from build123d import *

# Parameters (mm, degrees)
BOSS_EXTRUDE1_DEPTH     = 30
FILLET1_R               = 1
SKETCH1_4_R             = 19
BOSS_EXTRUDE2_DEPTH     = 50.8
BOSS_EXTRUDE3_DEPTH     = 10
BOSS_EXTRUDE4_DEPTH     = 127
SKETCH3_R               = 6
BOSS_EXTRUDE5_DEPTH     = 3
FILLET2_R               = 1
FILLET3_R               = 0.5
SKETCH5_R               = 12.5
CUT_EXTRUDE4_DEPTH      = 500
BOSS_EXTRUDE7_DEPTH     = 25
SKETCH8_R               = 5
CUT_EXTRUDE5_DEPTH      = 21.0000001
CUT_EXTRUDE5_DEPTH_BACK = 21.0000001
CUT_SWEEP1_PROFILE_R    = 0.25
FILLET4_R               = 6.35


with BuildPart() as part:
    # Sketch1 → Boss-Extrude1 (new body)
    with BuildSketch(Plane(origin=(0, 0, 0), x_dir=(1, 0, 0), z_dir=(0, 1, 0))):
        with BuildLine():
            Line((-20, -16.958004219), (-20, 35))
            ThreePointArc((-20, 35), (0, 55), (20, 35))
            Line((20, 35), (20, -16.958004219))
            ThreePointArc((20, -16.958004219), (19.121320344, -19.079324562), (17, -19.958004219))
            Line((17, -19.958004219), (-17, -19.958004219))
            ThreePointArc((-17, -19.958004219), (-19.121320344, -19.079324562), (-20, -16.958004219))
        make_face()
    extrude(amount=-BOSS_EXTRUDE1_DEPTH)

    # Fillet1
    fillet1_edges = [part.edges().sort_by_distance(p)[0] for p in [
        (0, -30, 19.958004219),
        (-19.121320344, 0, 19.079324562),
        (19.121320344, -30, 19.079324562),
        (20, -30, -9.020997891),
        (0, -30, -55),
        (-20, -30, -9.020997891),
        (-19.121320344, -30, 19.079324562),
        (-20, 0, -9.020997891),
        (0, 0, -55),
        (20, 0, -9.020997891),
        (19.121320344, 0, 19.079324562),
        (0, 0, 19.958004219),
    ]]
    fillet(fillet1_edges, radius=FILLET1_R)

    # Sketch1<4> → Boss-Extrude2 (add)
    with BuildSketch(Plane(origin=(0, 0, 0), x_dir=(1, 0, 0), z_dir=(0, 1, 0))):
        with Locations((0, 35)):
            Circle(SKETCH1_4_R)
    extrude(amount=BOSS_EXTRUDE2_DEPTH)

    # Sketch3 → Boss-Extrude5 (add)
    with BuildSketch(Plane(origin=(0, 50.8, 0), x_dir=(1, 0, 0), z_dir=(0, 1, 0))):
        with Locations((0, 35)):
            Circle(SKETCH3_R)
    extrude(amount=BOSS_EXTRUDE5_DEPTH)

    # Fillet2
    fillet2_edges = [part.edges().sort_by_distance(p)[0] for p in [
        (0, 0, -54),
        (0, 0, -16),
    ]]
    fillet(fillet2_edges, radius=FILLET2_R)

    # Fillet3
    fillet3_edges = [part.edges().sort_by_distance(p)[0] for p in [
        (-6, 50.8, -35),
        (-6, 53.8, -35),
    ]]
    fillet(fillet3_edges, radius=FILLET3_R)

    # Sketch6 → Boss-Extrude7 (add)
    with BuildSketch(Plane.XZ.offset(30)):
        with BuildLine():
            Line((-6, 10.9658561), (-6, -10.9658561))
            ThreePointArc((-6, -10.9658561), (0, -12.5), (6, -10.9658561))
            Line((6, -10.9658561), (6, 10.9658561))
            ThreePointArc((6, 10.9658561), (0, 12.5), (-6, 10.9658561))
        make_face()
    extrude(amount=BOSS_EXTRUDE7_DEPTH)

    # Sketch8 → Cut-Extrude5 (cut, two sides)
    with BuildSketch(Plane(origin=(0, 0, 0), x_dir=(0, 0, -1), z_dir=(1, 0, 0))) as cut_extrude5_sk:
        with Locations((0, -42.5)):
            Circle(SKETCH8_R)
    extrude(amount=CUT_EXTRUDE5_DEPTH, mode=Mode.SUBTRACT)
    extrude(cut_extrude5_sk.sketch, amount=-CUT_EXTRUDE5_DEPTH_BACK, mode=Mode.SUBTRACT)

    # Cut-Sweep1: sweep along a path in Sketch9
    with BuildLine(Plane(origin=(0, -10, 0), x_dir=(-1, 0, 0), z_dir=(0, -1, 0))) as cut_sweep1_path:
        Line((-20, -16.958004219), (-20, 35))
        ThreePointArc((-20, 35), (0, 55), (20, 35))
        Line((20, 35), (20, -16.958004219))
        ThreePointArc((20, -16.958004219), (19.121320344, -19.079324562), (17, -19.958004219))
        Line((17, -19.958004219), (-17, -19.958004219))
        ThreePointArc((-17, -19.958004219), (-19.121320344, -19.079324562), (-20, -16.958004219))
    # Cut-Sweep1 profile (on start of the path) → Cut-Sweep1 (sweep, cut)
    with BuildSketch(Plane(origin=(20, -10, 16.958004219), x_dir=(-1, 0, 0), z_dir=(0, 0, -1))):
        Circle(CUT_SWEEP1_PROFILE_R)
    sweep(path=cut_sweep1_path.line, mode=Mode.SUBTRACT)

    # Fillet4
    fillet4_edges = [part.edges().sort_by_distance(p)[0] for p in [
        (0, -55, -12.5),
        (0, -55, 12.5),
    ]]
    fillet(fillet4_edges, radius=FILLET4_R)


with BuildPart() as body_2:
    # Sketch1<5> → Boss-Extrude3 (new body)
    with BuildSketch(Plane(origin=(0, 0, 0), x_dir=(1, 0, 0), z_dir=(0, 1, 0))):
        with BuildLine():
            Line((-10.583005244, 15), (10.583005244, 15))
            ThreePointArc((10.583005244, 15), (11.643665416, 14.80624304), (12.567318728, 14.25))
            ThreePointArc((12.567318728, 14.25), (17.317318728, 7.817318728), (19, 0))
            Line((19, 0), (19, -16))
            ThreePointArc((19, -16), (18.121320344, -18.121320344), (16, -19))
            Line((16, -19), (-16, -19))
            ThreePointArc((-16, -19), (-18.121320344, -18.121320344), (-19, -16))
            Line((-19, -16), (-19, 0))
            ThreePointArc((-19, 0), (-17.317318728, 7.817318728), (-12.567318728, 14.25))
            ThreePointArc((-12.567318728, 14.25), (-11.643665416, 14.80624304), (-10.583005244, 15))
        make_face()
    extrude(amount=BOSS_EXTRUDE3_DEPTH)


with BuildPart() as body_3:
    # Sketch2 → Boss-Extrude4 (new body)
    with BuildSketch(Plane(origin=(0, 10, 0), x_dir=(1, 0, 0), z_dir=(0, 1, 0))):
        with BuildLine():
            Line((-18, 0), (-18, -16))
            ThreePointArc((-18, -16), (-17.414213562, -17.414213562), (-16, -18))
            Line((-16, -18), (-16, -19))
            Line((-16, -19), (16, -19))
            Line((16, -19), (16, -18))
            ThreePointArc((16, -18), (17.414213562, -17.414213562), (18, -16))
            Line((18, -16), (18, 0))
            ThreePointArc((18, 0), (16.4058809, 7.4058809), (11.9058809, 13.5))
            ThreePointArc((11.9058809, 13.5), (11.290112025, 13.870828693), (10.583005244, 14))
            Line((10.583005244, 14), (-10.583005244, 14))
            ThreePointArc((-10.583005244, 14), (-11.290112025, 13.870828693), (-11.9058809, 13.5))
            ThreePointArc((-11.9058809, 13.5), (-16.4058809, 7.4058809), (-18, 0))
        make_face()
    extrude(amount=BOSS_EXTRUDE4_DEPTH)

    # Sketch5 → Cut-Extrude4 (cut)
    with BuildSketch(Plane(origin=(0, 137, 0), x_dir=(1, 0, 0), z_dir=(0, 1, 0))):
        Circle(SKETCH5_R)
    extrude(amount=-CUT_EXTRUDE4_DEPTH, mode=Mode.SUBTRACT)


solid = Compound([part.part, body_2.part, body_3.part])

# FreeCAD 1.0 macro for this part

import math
import FreeCAD as App
import Part
import Sketcher


def edges_at(feature, points):
    """Names of the edges that pass closest to the given points."""
    edges = feature.Shape.Edges
    near = lambda p: min(range(len(edges)), key=lambda i: edges[i].distToShape(Part.Vertex(*p))[0])
    return sorted({f"Edge{near(p) + 1}" for p in points})

doc = App.newDocument("Part")
body = doc.addObject("PartDesign::Body", "Body")

# Sketch on XZ plane
sketch1 = body.newObject("Sketcher::SketchObject", "Sketch")
sketch1.AttachmentSupport = (doc.getObject("XZ_Plane"), [""])
sketch1.MapMode = "FlatFace"
sketch1.addGeometry([
    Part.LineSegment(App.Vector(-20, -35, 0), App.Vector(-20, 16.958004, 0)),  # 0
    Part.ArcOfCircle(Part.Circle(App.Vector(-17, 16.958004, 0), App.Vector(0, 0, 1), 3), math.radians(90), math.radians(180)),  # 1
    Part.LineSegment(App.Vector(-17, 19.958004, 0), App.Vector(17, 19.958004, 0)),  # 2
    Part.ArcOfCircle(Part.Circle(App.Vector(17, 16.958004, 0), App.Vector(0, 0, 1), 3), math.radians(0), math.radians(90)),  # 3
    Part.LineSegment(App.Vector(20, 16.958004, 0), App.Vector(20, -35, 0)),  # 4
    Part.ArcOfCircle(Part.Circle(App.Vector(0, -35, 0), App.Vector(0, 0, 1), 20), math.radians(180), math.radians(360)),  # 5
], False)
sketch1.addConstraint([
    Sketcher.Constraint("Tangent", 0, 2, 1, 2),
    Sketcher.Constraint("Tangent", 1, 1, 2, 1),
    Sketcher.Constraint("Tangent", 2, 2, 3, 2),
    Sketcher.Constraint("Tangent", 3, 1, 4, 1),
    Sketcher.Constraint("Tangent", 4, 2, 5, 2),
    Sketcher.Constraint("Tangent", 5, 1, 0, 1),
    Sketcher.Constraint("Vertical", 0),
    Sketcher.Constraint("Horizontal", 2),
    Sketcher.Constraint("Vertical", 4),
    Sketcher.Constraint("Equal", 1, 3),
    Sketcher.Constraint("PointOnObject", 5, 3, -2),
    Sketcher.Constraint("Radius", 1, 3.0),
    Sketcher.Constraint("Radius", 5, 20.0),
    Sketcher.Constraint("DistanceY", 5, 3, -1, 1, 35.0),
    Sketcher.Constraint("DistanceY", 0, 1, 0, 2, 51.958004),
])
pad1 = body.newObject("PartDesign::Pad", "Pad")
pad1.Profile = sketch1
pad1.Length = 30
doc.recompute()

fillet = body.newObject("PartDesign::Fillet", "Fillet")
fillet.Base = (pad1, edges_at(pad1, [
    (0, -30, 19.958),
    (-19.121, 0, 19.079),
    (19.121, -30, 19.079),
    (20, -30, -9.021),
    (0, -30, -55),
    (-20, -30, -9.021),
    (-19.121, -30, 19.079),
    (-20, 0, -9.021),
    (0, 0, -55),
    (20, 0, -9.021),
    (19.121, 0, 19.079),
    (0, 0, 19.958),
]))
fillet.Radius = 1

# Sketch on XZ plane
sketch2 = body.newObject("Sketcher::SketchObject", "Sketch001")
sketch2.AttachmentSupport = (doc.getObject("XZ_Plane"), [""])
sketch2.MapMode = "FlatFace"
sketch2.addGeometry(Part.Circle(App.Vector(0, -35, 0), App.Vector(0, 0, 1), 19), False)
sketch2.addConstraint([
    Sketcher.Constraint("PointOnObject", 0, 3, -2),
    Sketcher.Constraint("Diameter", 0, 38.0),
    Sketcher.Constraint("DistanceY", 0, 3, -1, 1, 35.0),
])
pad2 = body.newObject("PartDesign::Pad", "Pad001")
pad2.Profile = sketch2
pad2.Length = 50.8
pad2.Reversed = True

# Sketch on XZ plane
sketch3 = body.newObject("Sketcher::SketchObject", "Sketch002")
sketch3.AttachmentSupport = (doc.getObject("XZ_Plane"), [""])
sketch3.MapMode = "FlatFace"
sketch3.AttachmentOffset = App.Placement(App.Vector(0, 0, -50.8), App.Rotation())
sketch3.addGeometry(Part.Circle(App.Vector(0, -35, 0), App.Vector(0, 0, 1), 6), False)
sketch3.addConstraint([
    Sketcher.Constraint("PointOnObject", 0, 3, -2),
    Sketcher.Constraint("Diameter", 0, 12.0),
    Sketcher.Constraint("DistanceY", 0, 3, -1, 1, 35.0),
])
pad3 = body.newObject("PartDesign::Pad", "Pad002")
pad3.Profile = sketch3
pad3.Length = 3
pad3.Reversed = True
doc.recompute()

fillet2 = body.newObject("PartDesign::Fillet", "Fillet001")
fillet2.Base = (pad3, edges_at(pad3, [(0, 0, -54), (0, 0, -16)]))
fillet2.Radius = 1
doc.recompute()

fillet3 = body.newObject("PartDesign::Fillet", "Fillet002")
fillet3.Base = (fillet2, edges_at(fillet2, [(-6, 50.8, -35), (-6, 53.8, -35)]))
fillet3.Radius = 0.5

# Sketch on XZ plane
sketch4 = body.newObject("Sketcher::SketchObject", "Sketch003")
sketch4.AttachmentSupport = (doc.getObject("XZ_Plane"), [""])
sketch4.MapMode = "FlatFace"
sketch4.AttachmentOffset = App.Placement(App.Vector(0, 0, 30), App.Rotation())
sketch4.addGeometry([
    Part.LineSegment(App.Vector(-6, 10.965856, 0), App.Vector(-6, -10.965856, 0)),
    Part.ArcOfCircle(Part.Circle(App.Vector(0, 0, 0), App.Vector(0, 0, 1), 12.5), math.radians(-118.685402), math.radians(-61.314598)),
    Part.LineSegment(App.Vector(6, -10.965856, 0), App.Vector(6, 10.965856, 0)),
    Part.ArcOfCircle(Part.Circle(App.Vector(0, 0, 0), App.Vector(0, 0, 1), 12.5), math.radians(61.314598), math.radians(118.685402)),
], False)
sketch4.addConstraint([
    Sketcher.Constraint("Coincident", 0, 2, 1, 1),
    Sketcher.Constraint("Coincident", 1, 2, 2, 1),
    Sketcher.Constraint("Coincident", 2, 2, 3, 1),
    Sketcher.Constraint("Coincident", 3, 2, 0, 1),
    Sketcher.Constraint("Vertical", 0),
    Sketcher.Constraint("Vertical", 2),
    Sketcher.Constraint("Coincident", 1, 3, -1, 1),
    Sketcher.Constraint("Coincident", 3, 3, -1, 1),
    Sketcher.Constraint("Equal", 1, 3),
    Sketcher.Constraint("Horizontal", 0, 2, 1, 2),
    Sketcher.Constraint("Radius", 1, 12.5),
    Sketcher.Constraint("DistanceX", 0, 2, -1, 1, 6.0),
])
pad4 = body.newObject("PartDesign::Pad", "Pad003")
pad4.Profile = sketch4
pad4.Length = 25

# Sketch on YZ plane
sketch5 = body.newObject("Sketcher::SketchObject", "Sketch004")
sketch5.AttachmentSupport = (doc.getObject("YZ_Plane"), [""])
sketch5.MapMode = "FlatFace"
sketch5.addGeometry(Part.Circle(App.Vector(-42.5, 0, 0), App.Vector(0, 0, 1), 5), False)
sketch5.addConstraint([
    Sketcher.Constraint("PointOnObject", 0, 3, -1),
    Sketcher.Constraint("Diameter", 0, 10.0),
    Sketcher.Constraint("DistanceX", 0, 3, -1, 1, 42.5),
])
pocket1 = body.newObject("PartDesign::Pocket", "Pocket")
pocket1.Profile = sketch5
pocket1.Type = "ThroughAll"
pocket1.Midplane = True

# Sketch on XY plane
sketch6 = body.newObject("Sketcher::SketchObject", "Sketch005")
sketch6.AttachmentSupport = (doc.getObject("XY_Plane"), [""])
sketch6.MapMode = "FlatFace"
sketch6.AttachmentOffset = App.Placement(App.Vector(0, 0, 16.958004), App.Rotation())
sketch6.addGeometry(Part.Circle(App.Vector(20, -10, 0), App.Vector(0, 0, 1), 0.25), False)
sketch6.addConstraint([
    Sketcher.Constraint("Diameter", 0, 0.5),
    Sketcher.Constraint("DistanceX", -1, 1, 0, 3, 20.0),
    Sketcher.Constraint("DistanceY", 0, 3, -1, 1, 10.0),
])

# Sketch on XZ plane
sketch7 = body.newObject("Sketcher::SketchObject", "Sketch006")
sketch7.AttachmentSupport = (doc.getObject("XZ_Plane"), [""])
sketch7.MapMode = "FlatFace"
sketch7.AttachmentOffset = App.Placement(App.Vector(0, 0, 10), App.Rotation())
sketch7.addGeometry([
    Part.LineSegment(App.Vector(20, 16.958004, 0), App.Vector(20, -35, 0)),  # 0
    Part.ArcOfCircle(Part.Circle(App.Vector(0, -35, 0), App.Vector(0, 0, 1), 20), math.radians(180), math.radians(360)),  # 1
    Part.LineSegment(App.Vector(-20, -35, 0), App.Vector(-20, 16.958004, 0)),  # 2
    Part.ArcOfCircle(Part.Circle(App.Vector(-17, 16.958004, 0), App.Vector(0, 0, 1), 3), math.radians(90), math.radians(180)),  # 3
    Part.LineSegment(App.Vector(-17, 19.958004, 0), App.Vector(17, 19.958004, 0)),  # 4
    Part.ArcOfCircle(Part.Circle(App.Vector(17, 16.958004, 0), App.Vector(0, 0, 1), 3), math.radians(0), math.radians(90)),  # 5
], False)
sketch7.addConstraint([
    Sketcher.Constraint("Tangent", 0, 2, 1, 2),
    Sketcher.Constraint("Tangent", 1, 1, 2, 1),
    Sketcher.Constraint("Tangent", 2, 2, 3, 2),
    Sketcher.Constraint("Tangent", 3, 1, 4, 1),
    Sketcher.Constraint("Tangent", 4, 2, 5, 2),
    Sketcher.Constraint("Tangent", 5, 1, 0, 1),
    Sketcher.Constraint("Vertical", 0),
    Sketcher.Constraint("Vertical", 2),
    Sketcher.Constraint("Horizontal", 4),
    Sketcher.Constraint("Equal", 3, 5),
    Sketcher.Constraint("PointOnObject", 1, 3, -2),
    Sketcher.Constraint("Radius", 1, 20.0),
    Sketcher.Constraint("Radius", 3, 3.0),
    Sketcher.Constraint("DistanceY", 1, 3, -1, 1, 35.0),
    Sketcher.Constraint("DistanceY", 0, 2, 0, 1, 51.958004),
])
doc.recompute()

subtractivepipe = body.newObject("PartDesign::SubtractivePipe", "SubtractivePipe")
subtractivepipe.Profile = sketch6
subtractivepipe.Spine = (sketch7, ["Edge1", "Edge2", "Edge3", "Edge4", "Edge5", "Edge6"])
doc.recompute()

fillet4 = body.newObject("PartDesign::Fillet", "Fillet003")
fillet4.Base = (subtractivepipe, edges_at(subtractivepipe, [(0, -55, -12.5), (0, -55, 12.5)]))
fillet4.Radius = 6.35
body2 = doc.addObject("PartDesign::Body", "Body001")

# Sketch on XZ plane
sketch8 = body2.newObject("Sketcher::SketchObject", "Sketch007")
sketch8.AttachmentSupport = (doc.getObject("XZ_Plane001"), [""])
sketch8.MapMode = "FlatFace"
sketch8.addGeometry([
    Part.LineSegment(App.Vector(10.583005, -15, 0), App.Vector(-10.583005, -15, 0)),  # 0
    Part.ArcOfCircle(Part.Circle(App.Vector(-10.583005, -12, 0), App.Vector(0, 0, 1), 3), math.radians(-131.409622), math.radians(-90)),  # 1
    Part.ArcOfCircle(Part.Circle(App.Vector(0, 0, 0), App.Vector(0, 0, 1), 19), math.radians(180), math.radians(228.590378)),  # 2
    Part.LineSegment(App.Vector(-19, 0, 0), App.Vector(-19, 16, 0)),  # 3
    Part.ArcOfCircle(Part.Circle(App.Vector(-16, 16, 0), App.Vector(0, 0, 1), 3), math.radians(90), math.radians(180)),  # 4
    Part.LineSegment(App.Vector(-16, 19, 0), App.Vector(16, 19, 0)),  # 5
    Part.ArcOfCircle(Part.Circle(App.Vector(16, 16, 0), App.Vector(0, 0, 1), 3), math.radians(0), math.radians(90)),  # 6
    Part.LineSegment(App.Vector(19, 16, 0), App.Vector(19, 0, 0)),  # 7
    Part.ArcOfCircle(Part.Circle(App.Vector(0, 0, 0), App.Vector(0, 0, 1), 19), math.radians(-48.590378), math.radians(0)),  # 8
    Part.ArcOfCircle(Part.Circle(App.Vector(10.583005, -12, 0), App.Vector(0, 0, 1), 3), math.radians(-90), math.radians(-48.590378)),  # 9
], False)
sketch8.addConstraint([
    Sketcher.Constraint("Tangent", 0, 2, 1, 2),
    Sketcher.Constraint("Tangent", 1, 1, 2, 2),
    Sketcher.Constraint("Tangent", 2, 1, 3, 1),
    Sketcher.Constraint("Tangent", 3, 2, 4, 2),
    Sketcher.Constraint("Tangent", 4, 1, 5, 1),
    Sketcher.Constraint("Tangent", 5, 2, 6, 2),
    Sketcher.Constraint("Tangent", 6, 1, 7, 1),
    Sketcher.Constraint("Tangent", 7, 2, 8, 2),
    Sketcher.Constraint("Tangent", 8, 1, 9, 2),
    Sketcher.Constraint("Tangent", 9, 1, 0, 1),
    Sketcher.Constraint("Horizontal", 0),
    Sketcher.Constraint("Vertical", 3),
    Sketcher.Constraint("Horizontal", 5),
    Sketcher.Constraint("Vertical", 7),
    Sketcher.Constraint("Coincident", 2, 3, -1, 1),
    Sketcher.Constraint("Coincident", 8, 3, -1, 1),
    Sketcher.Constraint("Equal", 1, 4),
    Sketcher.Constraint("Equal", 4, 6),
    Sketcher.Constraint("Equal", 2, 8),
    Sketcher.Constraint("Equal", 6, 9),
    Sketcher.Constraint("Radius", 1, 3.0),
    Sketcher.Constraint("Radius", 2, 19.0),
    Sketcher.Constraint("DistanceY", 3, 1, 3, 2, 16.0),
    Sketcher.Constraint("DistanceY", 1, 3, -1, 1, 12.0),
])
pad5 = body2.newObject("PartDesign::Pad", "Pad004")
pad5.Profile = sketch8
pad5.Length = 10
pad5.Reversed = True
body3 = doc.addObject("PartDesign::Body", "Body002")

# Sketch on XZ plane
sketch9 = body3.newObject("Sketcher::SketchObject", "Sketch008")
sketch9.AttachmentSupport = (doc.getObject("XZ_Plane002"), [""])
sketch9.MapMode = "FlatFace"
sketch9.AttachmentOffset = App.Placement(App.Vector(0, 0, -10), App.Rotation())
sketch9.addGeometry([
    Part.LineSegment(App.Vector(-18, 0, 0), App.Vector(-18, 16, 0)),  # 0
    Part.ArcOfCircle(Part.Circle(App.Vector(-16, 16, 0), App.Vector(0, 0, 1), 2), math.radians(90), math.radians(180)),  # 1
    Part.LineSegment(App.Vector(-16, 18, 0), App.Vector(-16, 19, 0)),  # 2
    Part.LineSegment(App.Vector(-16, 19, 0), App.Vector(16, 19, 0)),  # 3
    Part.LineSegment(App.Vector(16, 19, 0), App.Vector(16, 18, 0)),  # 4
    Part.ArcOfCircle(Part.Circle(App.Vector(16, 16, 0), App.Vector(0, 0, 1), 2), math.radians(0), math.radians(90)),  # 5
    Part.LineSegment(App.Vector(18, 16, 0), App.Vector(18, 0, 0)),  # 6
    Part.ArcOfCircle(Part.Circle(App.Vector(0, 0, 0), App.Vector(0, 0, 1), 18), math.radians(-48.590378), math.radians(0)),  # 7
    Part.ArcOfCircle(Part.Circle(App.Vector(10.583005, -12, 0), App.Vector(0, 0, 1), 2), math.radians(-90), math.radians(-48.590378)),  # 8
    Part.LineSegment(App.Vector(10.583005, -14, 0), App.Vector(-10.583005, -14, 0)),  # 9
    Part.ArcOfCircle(Part.Circle(App.Vector(-10.583005, -12, 0), App.Vector(0, 0, 1), 2), math.radians(-131.409622), math.radians(-90)),  # 10
    Part.ArcOfCircle(Part.Circle(App.Vector(0, 0, 0), App.Vector(0, 0, 1), 18), math.radians(180), math.radians(228.590378)),  # 11
], False)
sketch9.addConstraint([
    Sketcher.Constraint("Tangent", 0, 2, 1, 2),
    Sketcher.Constraint("Coincident", 1, 1, 2, 1),
    Sketcher.Constraint("Coincident", 2, 2, 3, 1),
    Sketcher.Constraint("Coincident", 3, 2, 4, 1),
    Sketcher.Constraint("Coincident", 4, 2, 5, 2),
    Sketcher.Constraint("Tangent", 5, 1, 6, 1),
    Sketcher.Constraint("Tangent", 6, 2, 7, 2),
    Sketcher.Constraint("Tangent", 7, 1, 8, 2),
    Sketcher.Constraint("Tangent", 8, 1, 9, 1),
    Sketcher.Constraint("Tangent", 9, 2, 10, 2),
    Sketcher.Constraint("Tangent", 10, 1, 11, 2),
    Sketcher.Constraint("Tangent", 11, 1, 0, 1),
    Sketcher.Constraint("Vertical", 0),
    Sketcher.Constraint("Vertical", 2),
    Sketcher.Constraint("Horizontal", 3),
    Sketcher.Constraint("Vertical", 4),
    Sketcher.Constraint("Vertical", 6),
    Sketcher.Constraint("Horizontal", 9),
    Sketcher.Constraint("Coincident", 7, 3, -1, 1),
    Sketcher.Constraint("Coincident", 11, 3, -1, 1),
    Sketcher.Constraint("Equal", 1, 5),
    Sketcher.Constraint("Equal", 5, 8),
    Sketcher.Constraint("Equal", 8, 10),
    Sketcher.Constraint("Equal", 7, 11),
    Sketcher.Constraint("Symmetric", 1, 1, 4, 2, -2),
    Sketcher.Constraint("Vertical", 5, 3, 3, 2),
    Sketcher.Constraint("Radius", 1, 2.0),
    Sketcher.Constraint("Radius", 7, 18.0),
    Sketcher.Constraint("DistanceY", 0, 1, 0, 2, 16.0),
    Sketcher.Constraint("DistanceY", 2, 1, 2, 2, 1.0),
    Sketcher.Constraint("DistanceY", 8, 3, -1, 1, 12.0),
])
pad6 = body3.newObject("PartDesign::Pad", "Pad005")
pad6.Profile = sketch9
pad6.Length = 127
pad6.Reversed = True

# Sketch on XZ plane
sketch10 = body3.newObject("Sketcher::SketchObject", "Sketch009")
sketch10.AttachmentSupport = (doc.getObject("XZ_Plane002"), [""])
sketch10.MapMode = "FlatFace"
sketch10.AttachmentOffset = App.Placement(App.Vector(0, 0, -137), App.Rotation())
sketch10.addGeometry(Part.Circle(App.Vector(0, 0, 0), App.Vector(0, 0, 1), 12.5), False)
sketch10.addConstraint([
    Sketcher.Constraint("Coincident", 0, 3, -1, 1),
    Sketcher.Constraint("Diameter", 0, 25.0),
])
pocket2 = body3.newObject("PartDesign::Pocket", "Pocket001")
pocket2.Profile = sketch10
pocket2.Length = 500
pocket2.Reversed = True

doc.recompute()
